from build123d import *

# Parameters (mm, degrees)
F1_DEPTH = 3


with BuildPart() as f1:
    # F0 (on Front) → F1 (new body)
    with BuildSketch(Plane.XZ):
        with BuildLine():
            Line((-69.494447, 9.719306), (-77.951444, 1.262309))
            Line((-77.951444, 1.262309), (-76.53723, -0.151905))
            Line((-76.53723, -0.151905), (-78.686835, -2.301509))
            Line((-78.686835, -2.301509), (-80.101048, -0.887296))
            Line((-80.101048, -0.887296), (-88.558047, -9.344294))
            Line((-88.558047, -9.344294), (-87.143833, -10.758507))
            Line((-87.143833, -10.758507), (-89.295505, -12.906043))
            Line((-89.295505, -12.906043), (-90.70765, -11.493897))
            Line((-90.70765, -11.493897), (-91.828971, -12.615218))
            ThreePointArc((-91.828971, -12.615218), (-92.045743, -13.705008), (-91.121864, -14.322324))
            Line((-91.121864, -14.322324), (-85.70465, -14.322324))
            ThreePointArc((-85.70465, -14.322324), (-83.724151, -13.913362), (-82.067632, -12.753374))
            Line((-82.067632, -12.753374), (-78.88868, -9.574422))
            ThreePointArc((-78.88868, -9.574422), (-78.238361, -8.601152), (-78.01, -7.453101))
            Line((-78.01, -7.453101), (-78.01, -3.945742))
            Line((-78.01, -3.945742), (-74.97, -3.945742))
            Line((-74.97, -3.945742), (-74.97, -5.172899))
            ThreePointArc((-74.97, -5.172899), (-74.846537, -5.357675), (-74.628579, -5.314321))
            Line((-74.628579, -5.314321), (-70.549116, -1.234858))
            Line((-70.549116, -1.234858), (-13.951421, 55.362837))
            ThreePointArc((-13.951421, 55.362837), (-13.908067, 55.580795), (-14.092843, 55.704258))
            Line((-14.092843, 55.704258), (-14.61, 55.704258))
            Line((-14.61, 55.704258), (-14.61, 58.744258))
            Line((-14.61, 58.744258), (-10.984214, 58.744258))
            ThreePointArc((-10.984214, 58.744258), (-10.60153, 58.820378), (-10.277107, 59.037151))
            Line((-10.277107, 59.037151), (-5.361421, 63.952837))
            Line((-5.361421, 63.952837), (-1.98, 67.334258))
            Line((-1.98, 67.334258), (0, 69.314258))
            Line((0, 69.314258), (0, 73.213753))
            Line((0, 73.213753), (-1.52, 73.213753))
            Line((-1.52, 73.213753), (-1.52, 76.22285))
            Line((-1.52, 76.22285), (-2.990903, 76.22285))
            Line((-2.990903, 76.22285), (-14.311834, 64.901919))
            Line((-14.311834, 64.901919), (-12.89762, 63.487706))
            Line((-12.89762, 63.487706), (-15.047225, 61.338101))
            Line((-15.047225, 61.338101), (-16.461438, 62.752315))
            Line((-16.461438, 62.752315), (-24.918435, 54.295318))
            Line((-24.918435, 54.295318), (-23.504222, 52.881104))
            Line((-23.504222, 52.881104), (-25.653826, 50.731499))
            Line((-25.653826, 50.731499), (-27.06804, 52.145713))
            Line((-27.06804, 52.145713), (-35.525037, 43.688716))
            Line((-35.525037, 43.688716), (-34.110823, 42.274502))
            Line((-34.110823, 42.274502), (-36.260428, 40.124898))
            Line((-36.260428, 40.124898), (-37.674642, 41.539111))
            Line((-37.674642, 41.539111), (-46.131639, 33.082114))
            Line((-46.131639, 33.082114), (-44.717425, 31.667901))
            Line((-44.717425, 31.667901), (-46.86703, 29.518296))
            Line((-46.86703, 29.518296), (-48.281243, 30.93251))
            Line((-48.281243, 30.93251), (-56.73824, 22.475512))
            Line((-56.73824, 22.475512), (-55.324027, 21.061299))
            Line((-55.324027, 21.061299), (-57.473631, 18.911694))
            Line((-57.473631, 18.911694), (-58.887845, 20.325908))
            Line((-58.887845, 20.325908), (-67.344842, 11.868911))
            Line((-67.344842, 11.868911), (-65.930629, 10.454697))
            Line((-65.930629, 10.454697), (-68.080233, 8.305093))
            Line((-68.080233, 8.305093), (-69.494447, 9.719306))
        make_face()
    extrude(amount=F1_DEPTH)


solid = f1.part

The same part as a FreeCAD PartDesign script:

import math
import FreeCAD as App
import Part
import Sketcher

V = App.Vector
Q = App.Units.Quantity

doc = App.newDocument("Part")
body = doc.addObject("PartDesign::Body", "Body")

# Sketch on XZ plane
sketch1 = body.newObject("Sketcher::SketchObject", "Sketch")
sketch1.AttachmentSupport = (doc.getObject("XZ_Plane"), [""])
sketch1.MapMode = "FlatFace"
sketch1.addGeometry([
    Part.LineSegment(V(-69.49, 9.72, 0), V(-77.95, 1.26, 0)),  # 0
    Part.LineSegment(V(-77.95, 1.26, 0), V(-76.54, -0.15, 0)),  # 1
    Part.LineSegment(V(-76.54, -0.15, 0), V(-78.69, -2.3, 0)),  # 2
    Part.LineSegment(V(-78.69, -2.3, 0), V(-80.1, -0.89, 0)),  # 3
    Part.LineSegment(V(-80.1, -0.89, 0), V(-88.56, -9.34, 0)),  # 4
    Part.LineSegment(V(-88.56, -9.34, 0), V(-87.14, -10.76, 0)),  # 5
    Part.LineSegment(V(-87.14, -10.76, 0), V(-89.3, -12.91, 0)),  # 6
    Part.LineSegment(V(-89.3, -12.91, 0), V(-90.71, -11.49, 0)),  # 7
    Part.LineSegment(V(-90.71, -11.49, 0), V(-91.83, -12.62, 0)),  # 8
    Part.ArcOfCircle(Part.Circle(V(-91.12, -13.32, 0), V(0, 0, 1), 1), math.radians(135), math.radians(270)),  # 9
    Part.LineSegment(V(-91.12, -14.32, 0), V(-85.7, -14.32, 0)),  # 10
    Part.ArcOfCircle(Part.Circle(V(-85.7, -9.32, 0), V(0, 0, 1), 5), math.radians(-90), math.radians(-43)),  # 11
    Part.LineSegment(V(-82.07, -12.75, 0), V(-78.89, -9.57, 0)),  # 12
    Part.ArcOfCircle(Part.Circle(V(-81.01, -7.45, 0), V(0, 0, 1), 3), math.radians(-45), math.radians(0)),  # 13
    Part.LineSegment(V(-78.01, -7.45, 0), V(-78.01, -3.95, 0)),  # 14
    Part.LineSegment(V(-78.01, -3.95, 0), V(-74.97, -3.95, 0)),  # 15
    Part.LineSegment(V(-74.97, -3.95, 0), V(-74.97, -5.17, 0)),  # 16
    Part.ArcOfCircle(Part.Circle(V(-74.77, -5.17, 0), V(0, 0, 1), 0.2), math.radians(180), math.radians(315)),  # 17
    Part.LineSegment(V(-74.63, -5.31, 0), V(-13.95, 55.36, 0)),  # 18
    Part.ArcOfCircle(Part.Circle(V(-14.09, 55.5, 0), V(0, 0, 1), 0.2), math.radians(-45), math.radians(90)),  # 19
    Part.LineSegment(V(-14.09, 55.7, 0), V(-14.61, 55.7, 0)),  # 20
    Part.LineSegment(V(-14.61, 55.7, 0), V(-14.61, 58.74, 0)),  # 21
    Part.LineSegment(V(-14.61, 58.74, 0), V(-10.98, 58.74, 0)),  # 22
    Part.ArcOfCircle(Part.Circle(V(-10.98, 59.74, 0), V(0, 0, 1), 1), math.radians(-90), math.radians(-45)),  # 23
    Part.LineSegment(V(-10.28, 59.04, 0), V(0, 69.31, 0)),  # 24
    Part.LineSegment(V(0, 69.31, 0), V(0, 73.21, 0)),  # 25
    Part.LineSegment(V(0, 73.21, 0), V(-1.52, 73.21, 0)),  # 26
    Part.LineSegment(V(-1.52, 73.21, 0), V(-1.52, 76.22, 0)),  # 27
    Part.LineSegment(V(-1.52, 76.22, 0), V(-2.99, 76.22, 0)),  # 28
    Part.LineSegment(V(-2.99, 76.22, 0), V(-14.31, 64.9, 0)),  # 29
    Part.LineSegment(V(-14.31, 64.9, 0), V(-12.9, 63.49, 0)),  # 30
    Part.LineSegment(V(-12.9, 63.49, 0), V(-15.05, 61.34, 0)),  # 31
    Part.LineSegment(V(-15.05, 61.34, 0), V(-16.46, 62.75, 0)),  # 32
    Part.LineSegment(V(-16.46, 62.75, 0), V(-24.92, 54.3, 0)),  # 33
    Part.LineSegment(V(-24.92, 54.3, 0), V(-23.5, 52.88, 0)),  # 34
    Part.LineSegment(V(-23.5, 52.88, 0), V(-25.65, 50.73, 0)),  # 35
    Part.LineSegment(V(-25.65, 50.73, 0), V(-27.07, 52.15, 0)),  # 36
    Part.LineSegment(V(-27.07, 52.15, 0), V(-35.53, 43.69, 0)),  # 37
    Part.LineSegment(V(-35.53, 43.69, 0), V(-34.11, 42.27, 0)),  # 38
    Part.LineSegment(V(-34.11, 42.27, 0), V(-36.26, 40.12, 0)),  # 39
    Part.LineSegment(V(-36.26, 40.12, 0), V(-37.67, 41.54, 0)),  # 40
    Part.LineSegment(V(-37.67, 41.54, 0), V(-46.13, 33.08, 0)),  # 41
    Part.LineSegment(V(-46.13, 33.08, 0), V(-44.72, 31.67, 0)),  # 42
    Part.LineSegment(V(-44.72, 31.67, 0), V(-46.87, 29.52, 0)),  # 43
    Part.LineSegment(V(-46.87, 29.52, 0), V(-48.28, 30.93, 0)),  # 44
    Part.LineSegment(V(-48.28, 30.93, 0), V(-56.74, 22.48, 0)),  # 45
    Part.LineSegment(V(-56.74, 22.48, 0), V(-55.32, 21.06, 0)),  # 46
    Part.LineSegment(V(-55.32, 21.06, 0), V(-57.47, 18.91, 0)),  # 47
    Part.LineSegment(V(-57.47, 18.91, 0), V(-58.89, 20.33, 0)),  # 48
    Part.LineSegment(V(-58.89, 20.33, 0), V(-67.34, 11.87, 0)),  # 49
    Part.LineSegment(V(-67.34, 11.87, 0), V(-65.93, 10.45, 0)),  # 50
    Part.LineSegment(V(-65.93, 10.45, 0), V(-68.08, 8.31, 0)),  # 51
    Part.LineSegment(V(-68.08, 8.31, 0), V(-69.49, 9.72, 0)),  # 52
], False)
sketch1.addConstraint([
    Sketcher.Constraint("Coincident", 0, 2, 1, 1),
    Sketcher.Constraint("Coincident", 1, 2, 2, 1),
    Sketcher.Constraint("Coincident", 2, 2, 3, 1),
    Sketcher.Constraint("Coincident", 3, 2, 4, 1),
    Sketcher.Constraint("Coincident", 4, 2, 5, 1),
    Sketcher.Constraint("Coincident", 5, 2, 6, 1),
    Sketcher.Constraint("Coincident", 6, 2, 7, 1),
    Sketcher.Constraint("Coincident", 7, 2, 8, 1),
    Sketcher.Constraint("Tangent", 8, 2, 9, 1),
    Sketcher.Constraint("Tangent", 9, 2, 10, 1),
    Sketcher.Constraint("Tangent", 10, 2, 11, 1),
    Sketcher.Constraint("Coincident", 11, 2, 12, 1),
    Sketcher.Constraint("Tangent", 12, 2, 13, 1),
    Sketcher.Constraint("Tangent", 13, 2, 14, 1),
    Sketcher.Constraint("Coincident", 14, 2, 15, 1),
    Sketcher.Constraint("Coincident", 15, 2, 16, 1),
    Sketcher.Constraint("Tangent", 16, 2, 17, 1),
    Sketcher.Constraint("Coincident", 17, 2, 18, 1),
    Sketcher.Constraint("Coincident", 18, 2, 19, 1),
    Sketcher.Constraint("Tangent", 19, 2, 20, 1),
    Sketcher.Constraint("Coincident", 20, 2, 21, 1),
    Sketcher.Constraint("Coincident", 21, 2, 22, 1),
    Sketcher.Constraint("Coincident", 22, 2, 23, 1),
    Sketcher.Constraint("Coincident", 23, 2, 24, 1),
    Sketcher.Constraint("Coincident", 24, 2, 25, 1),
    Sketcher.Constraint("Coincident", 25, 2, 26, 1),
    Sketcher.Constraint("Coincident", 26, 2, 27, 1),
    Sketcher.Constraint("Coincident", 27, 2, 28, 1),
    Sketcher.Constraint("Coincident", 28, 2, 29, 1),
    Sketcher.Constraint("Coincident", 29, 2, 30, 1),
    Sketcher.Constraint("Coincident", 30, 2, 31, 1),
    Sketcher.Constraint("Coincident", 31, 2, 32, 1),
    Sketcher.Constraint("Coincident", 32, 2, 33, 1),
    Sketcher.Constraint("Coincident", 33, 2, 34, 1),
    Sketcher.Constraint("Coincident", 34, 2, 35, 1),
    Sketcher.Constraint("Coincident", 35, 2, 36, 1),
    Sketcher.Constraint("Coincident", 36, 2, 37, 1),
    Sketcher.Constraint("Coincident", 37, 2, 38, 1),
    Sketcher.Constraint("Coincident", 38, 2, 39, 1),
    Sketcher.Constraint("Coincident", 39, 2, 40, 1),
    Sketcher.Constraint("Coincident", 40, 2, 41, 1),
    Sketcher.Constraint("Coincident", 41, 2, 42, 1),
    Sketcher.Constraint("Coincident", 42, 2, 43, 1),
    Sketcher.Constraint("Coincident", 43, 2, 44, 1),
    Sketcher.Constraint("Coincident", 44, 2, 45, 1),
    Sketcher.Constraint("Coincident", 45, 2, 46, 1),
    Sketcher.Constraint("Coincident", 46, 2, 47, 1),
    Sketcher.Constraint("Coincident", 47, 2, 48, 1),
    Sketcher.Constraint("Coincident", 48, 2, 49, 1),
    Sketcher.Constraint("Coincident", 49, 2, 50, 1),
    Sketcher.Constraint("Coincident", 50, 2, 51, 1),
    Sketcher.Constraint("Coincident", 51, 2, 52, 1),
    Sketcher.Constraint("Coincident", 52, 2, 0, 1),
    Sketcher.Constraint("Horizontal", 10),
    Sketcher.Constraint("Vertical", 14),
    Sketcher.Constraint("Horizontal", 15),
    Sketcher.Constraint("Vertical", 16),
    Sketcher.Constraint("Horizontal", 20),
    Sketcher.Constraint("Vertical", 21),
    Sketcher.Constraint("Horizontal", 22),
    Sketcher.Constraint("Vertical", 25),
    Sketcher.Constraint("Horizontal", 26),
    Sketcher.Constraint("Vertical", 27),
    Sketcher.Constraint("Horizontal", 28),
    Sketcher.Constraint("Equal", 17, 19),
    Sketcher.Constraint("PointOnObject", 24, 2, -2),
    Sketcher.Constraint("Perpendicular", 0, 1),
    Sketcher.Constraint("Perpendicular", 1, 2),
    Sketcher.Constraint("Perpendicular", 2, 3),
    Sketcher.Constraint("Perpendicular", 3, 4),
    Sketcher.Constraint("Perpendicular", 4, 5),
    Sketcher.Constraint("Parallel", 5, 7),
    Sketcher.Constraint("Perpendicular", 7, 8),
    Sketcher.Constraint("Parallel", 8, 12),
    Sketcher.Constraint("Parallel", 12, 18),
    Sketcher.Constraint("Parallel", 18, 24),
    Sketcher.Constraint("Parallel", 24, 29),
    Sketcher.Constraint("Perpendicular", 29, 30),
    Sketcher.Constraint("Perpendicular", 30, 31),
    Sketcher.Constraint("Perpendicular", 31, 32),
    Sketcher.Constraint("Perpendicular", 32, 33),
    Sketcher.Constraint("Perpendicular", 33, 34),
    Sketcher.Constraint("Perpendicular", 34, 35),
    Sketcher.Constraint("Perpendicular", 35, 36),
    Sketcher.Constraint("Perpendicular", 36, 37),
    Sketcher.Constraint("Perpendicular", 37, 38),
    Sketcher.Constraint("Perpendicular", 38, 39),
    Sketcher.Constraint("Perpendicular", 39, 40),
    Sketcher.Constraint("Perpendicular", 40, 41),
    Sketcher.Constraint("Perpendicular", 41, 42),
    Sketcher.Constraint("Perpendicular", 42, 43),
    Sketcher.Constraint("Perpendicular", 43, 44),
    Sketcher.Constraint("Perpendicular", 44, 45),
    Sketcher.Constraint("Perpendicular", 45, 46),
    Sketcher.Constraint("Perpendicular", 46, 47),
    Sketcher.Constraint("Perpendicular", 47, 48),
    Sketcher.Constraint("Perpendicular", 48, 49),
    Sketcher.Constraint("Perpendicular", 49, 50),
    Sketcher.Constraint("Perpendicular", 50, 51),
    Sketcher.Constraint("Perpendicular", 51, 52),
    Sketcher.Constraint("Equal", 15, 21),
    Sketcher.Constraint("Equal", 1, 3),
    Sketcher.Constraint("Equal", 3, 5),
    Sketcher.Constraint("Equal", 2, 6),
    Sketcher.Constraint("Equal", 5, 30),
    Sketcher.Constraint("Equal", 6, 31),
    Sketcher.Constraint("Equal", 30, 32),
    Sketcher.Constraint("Equal", 0, 33),
    Sketcher.Constraint("Equal", 32, 34),
    Sketcher.Constraint("Equal", 31, 35),
    Sketcher.Constraint("Equal", 34, 36),
    Sketcher.Constraint("Equal", 33, 37),
    Sketcher.Constraint("Equal", 36, 38),
    Sketcher.Constraint("Equal", 35, 39),
    Sketcher.Constraint("Equal", 38, 40),
    Sketcher.Constraint("Equal", 37, 41),
    Sketcher.Constraint("Equal", 40, 42),
    Sketcher.Constraint("Equal", 39, 43),
    Sketcher.Constraint("Equal", 42, 44),
    Sketcher.Constraint("Equal", 41, 45),
    Sketcher.Constraint("Equal", 44, 46),
    Sketcher.Constraint("Equal", 43, 47),
    Sketcher.Constraint("Equal", 46, 48),
    Sketcher.Constraint("Equal", 45, 49),
    Sketcher.Constraint("Equal", 48, 50),
    Sketcher.Constraint("Equal", 47, 51),
    Sketcher.Constraint("Equal", 50, 52),
    Sketcher.Constraint("Radius", 9, Q("1 mm")),
    Sketcher.Constraint("Radius", 17, Q("0.2 mm")),
    Sketcher.Constraint("Angle", 0, Q("-135 deg")),
    Sketcher.Constraint("Distance", 1, Q("2.000001 mm")),
    Sketcher.Constraint("DistanceX", 15, 1, 15, 2, Q("3.04 mm")),
    Sketcher.Constraint("DistanceX", 26, 2, 26, 1, Q("1.52 mm")),
    Sketcher.Constraint("Distance", 0, Q("11.96 mm")),
    Sketcher.Constraint("Distance", 2, Q("3.04 mm")),
    Sketcher.Constraint("Distance", 4, Q("11.960002 mm")),
    Sketcher.Constraint("DistanceX", 17, 3, -1, 1, Q("74.77 mm")),
    Sketcher.Constraint("DistanceX", 20, 2, -1, 1, Q("14.61 mm")),
    Sketcher.Constraint("DistanceY", 22, 2, 24, 2, Q("10.57 mm")),
    Sketcher.Constraint("Radius", 11, Q("4.999995 mm")),
    Sketcher.Constraint("Radius", 13, Q("2.999994 mm")),
    Sketcher.Constraint("Radius", 23, Q("0.999994 mm")),
    Sketcher.Constraint("DistanceY", 14, 1, 14, 2, Q("3.507359 mm")),
    Sketcher.Constraint("DistanceY", 17, 3, -1, 1, Q("5.172899 mm")),
    Sketcher.Constraint("DistanceY", 13, 2, -1, 1, Q("7.453101 mm")),
    Sketcher.Constraint("DistanceY", -1, 1, 31, 2, Q("61.338101 mm")),
    Sketcher.Constraint("DistanceX", 0, 2, 19, 3, Q("63.858601 mm")),
    Sketcher.Constraint("DistanceX", 4, 2, 11, 3, Q("2.853399 mm")),
    Sketcher.Constraint("DistanceX", 5, 2, 11, 2, Q("5.076201 mm")),
    Sketcher.Constraint("DistanceY", 23, 2, 23, 3, Q("0.707101 mm")),
    Sketcher.Constraint("DistanceY", 23, 3, 25, 2, Q("13.469501 mm")),
    Sketcher.Constraint("DistanceY", 23, 2, 27, 2, Q("17.185699 mm")),
    Sketcher.Constraint("DistanceX", 34, 2, 18, 2, Q("9.552801 mm")),
    Sketcher.Constraint("Distance", 18, Q("85.81046 mm")),
    Sketcher.Constraint("DistanceX", 10, 1, 10, 2, Q("5.417214 mm")),
    Sketcher.Constraint("DistanceX", 20, 2, 20, 1, Q("0.517157 mm")),
    Sketcher.Constraint("DistanceX", 22, 1, 22, 2, Q("3.625786 mm")),
    Sketcher.Constraint("DistanceX", 9, 3, 6, 2, Q("1.826359 mm")),
])
pad1 = body.newObject("PartDesign::Pad", "Pad")
pad1.Profile = sketch1
pad1.Length = 3

doc.recompute()
